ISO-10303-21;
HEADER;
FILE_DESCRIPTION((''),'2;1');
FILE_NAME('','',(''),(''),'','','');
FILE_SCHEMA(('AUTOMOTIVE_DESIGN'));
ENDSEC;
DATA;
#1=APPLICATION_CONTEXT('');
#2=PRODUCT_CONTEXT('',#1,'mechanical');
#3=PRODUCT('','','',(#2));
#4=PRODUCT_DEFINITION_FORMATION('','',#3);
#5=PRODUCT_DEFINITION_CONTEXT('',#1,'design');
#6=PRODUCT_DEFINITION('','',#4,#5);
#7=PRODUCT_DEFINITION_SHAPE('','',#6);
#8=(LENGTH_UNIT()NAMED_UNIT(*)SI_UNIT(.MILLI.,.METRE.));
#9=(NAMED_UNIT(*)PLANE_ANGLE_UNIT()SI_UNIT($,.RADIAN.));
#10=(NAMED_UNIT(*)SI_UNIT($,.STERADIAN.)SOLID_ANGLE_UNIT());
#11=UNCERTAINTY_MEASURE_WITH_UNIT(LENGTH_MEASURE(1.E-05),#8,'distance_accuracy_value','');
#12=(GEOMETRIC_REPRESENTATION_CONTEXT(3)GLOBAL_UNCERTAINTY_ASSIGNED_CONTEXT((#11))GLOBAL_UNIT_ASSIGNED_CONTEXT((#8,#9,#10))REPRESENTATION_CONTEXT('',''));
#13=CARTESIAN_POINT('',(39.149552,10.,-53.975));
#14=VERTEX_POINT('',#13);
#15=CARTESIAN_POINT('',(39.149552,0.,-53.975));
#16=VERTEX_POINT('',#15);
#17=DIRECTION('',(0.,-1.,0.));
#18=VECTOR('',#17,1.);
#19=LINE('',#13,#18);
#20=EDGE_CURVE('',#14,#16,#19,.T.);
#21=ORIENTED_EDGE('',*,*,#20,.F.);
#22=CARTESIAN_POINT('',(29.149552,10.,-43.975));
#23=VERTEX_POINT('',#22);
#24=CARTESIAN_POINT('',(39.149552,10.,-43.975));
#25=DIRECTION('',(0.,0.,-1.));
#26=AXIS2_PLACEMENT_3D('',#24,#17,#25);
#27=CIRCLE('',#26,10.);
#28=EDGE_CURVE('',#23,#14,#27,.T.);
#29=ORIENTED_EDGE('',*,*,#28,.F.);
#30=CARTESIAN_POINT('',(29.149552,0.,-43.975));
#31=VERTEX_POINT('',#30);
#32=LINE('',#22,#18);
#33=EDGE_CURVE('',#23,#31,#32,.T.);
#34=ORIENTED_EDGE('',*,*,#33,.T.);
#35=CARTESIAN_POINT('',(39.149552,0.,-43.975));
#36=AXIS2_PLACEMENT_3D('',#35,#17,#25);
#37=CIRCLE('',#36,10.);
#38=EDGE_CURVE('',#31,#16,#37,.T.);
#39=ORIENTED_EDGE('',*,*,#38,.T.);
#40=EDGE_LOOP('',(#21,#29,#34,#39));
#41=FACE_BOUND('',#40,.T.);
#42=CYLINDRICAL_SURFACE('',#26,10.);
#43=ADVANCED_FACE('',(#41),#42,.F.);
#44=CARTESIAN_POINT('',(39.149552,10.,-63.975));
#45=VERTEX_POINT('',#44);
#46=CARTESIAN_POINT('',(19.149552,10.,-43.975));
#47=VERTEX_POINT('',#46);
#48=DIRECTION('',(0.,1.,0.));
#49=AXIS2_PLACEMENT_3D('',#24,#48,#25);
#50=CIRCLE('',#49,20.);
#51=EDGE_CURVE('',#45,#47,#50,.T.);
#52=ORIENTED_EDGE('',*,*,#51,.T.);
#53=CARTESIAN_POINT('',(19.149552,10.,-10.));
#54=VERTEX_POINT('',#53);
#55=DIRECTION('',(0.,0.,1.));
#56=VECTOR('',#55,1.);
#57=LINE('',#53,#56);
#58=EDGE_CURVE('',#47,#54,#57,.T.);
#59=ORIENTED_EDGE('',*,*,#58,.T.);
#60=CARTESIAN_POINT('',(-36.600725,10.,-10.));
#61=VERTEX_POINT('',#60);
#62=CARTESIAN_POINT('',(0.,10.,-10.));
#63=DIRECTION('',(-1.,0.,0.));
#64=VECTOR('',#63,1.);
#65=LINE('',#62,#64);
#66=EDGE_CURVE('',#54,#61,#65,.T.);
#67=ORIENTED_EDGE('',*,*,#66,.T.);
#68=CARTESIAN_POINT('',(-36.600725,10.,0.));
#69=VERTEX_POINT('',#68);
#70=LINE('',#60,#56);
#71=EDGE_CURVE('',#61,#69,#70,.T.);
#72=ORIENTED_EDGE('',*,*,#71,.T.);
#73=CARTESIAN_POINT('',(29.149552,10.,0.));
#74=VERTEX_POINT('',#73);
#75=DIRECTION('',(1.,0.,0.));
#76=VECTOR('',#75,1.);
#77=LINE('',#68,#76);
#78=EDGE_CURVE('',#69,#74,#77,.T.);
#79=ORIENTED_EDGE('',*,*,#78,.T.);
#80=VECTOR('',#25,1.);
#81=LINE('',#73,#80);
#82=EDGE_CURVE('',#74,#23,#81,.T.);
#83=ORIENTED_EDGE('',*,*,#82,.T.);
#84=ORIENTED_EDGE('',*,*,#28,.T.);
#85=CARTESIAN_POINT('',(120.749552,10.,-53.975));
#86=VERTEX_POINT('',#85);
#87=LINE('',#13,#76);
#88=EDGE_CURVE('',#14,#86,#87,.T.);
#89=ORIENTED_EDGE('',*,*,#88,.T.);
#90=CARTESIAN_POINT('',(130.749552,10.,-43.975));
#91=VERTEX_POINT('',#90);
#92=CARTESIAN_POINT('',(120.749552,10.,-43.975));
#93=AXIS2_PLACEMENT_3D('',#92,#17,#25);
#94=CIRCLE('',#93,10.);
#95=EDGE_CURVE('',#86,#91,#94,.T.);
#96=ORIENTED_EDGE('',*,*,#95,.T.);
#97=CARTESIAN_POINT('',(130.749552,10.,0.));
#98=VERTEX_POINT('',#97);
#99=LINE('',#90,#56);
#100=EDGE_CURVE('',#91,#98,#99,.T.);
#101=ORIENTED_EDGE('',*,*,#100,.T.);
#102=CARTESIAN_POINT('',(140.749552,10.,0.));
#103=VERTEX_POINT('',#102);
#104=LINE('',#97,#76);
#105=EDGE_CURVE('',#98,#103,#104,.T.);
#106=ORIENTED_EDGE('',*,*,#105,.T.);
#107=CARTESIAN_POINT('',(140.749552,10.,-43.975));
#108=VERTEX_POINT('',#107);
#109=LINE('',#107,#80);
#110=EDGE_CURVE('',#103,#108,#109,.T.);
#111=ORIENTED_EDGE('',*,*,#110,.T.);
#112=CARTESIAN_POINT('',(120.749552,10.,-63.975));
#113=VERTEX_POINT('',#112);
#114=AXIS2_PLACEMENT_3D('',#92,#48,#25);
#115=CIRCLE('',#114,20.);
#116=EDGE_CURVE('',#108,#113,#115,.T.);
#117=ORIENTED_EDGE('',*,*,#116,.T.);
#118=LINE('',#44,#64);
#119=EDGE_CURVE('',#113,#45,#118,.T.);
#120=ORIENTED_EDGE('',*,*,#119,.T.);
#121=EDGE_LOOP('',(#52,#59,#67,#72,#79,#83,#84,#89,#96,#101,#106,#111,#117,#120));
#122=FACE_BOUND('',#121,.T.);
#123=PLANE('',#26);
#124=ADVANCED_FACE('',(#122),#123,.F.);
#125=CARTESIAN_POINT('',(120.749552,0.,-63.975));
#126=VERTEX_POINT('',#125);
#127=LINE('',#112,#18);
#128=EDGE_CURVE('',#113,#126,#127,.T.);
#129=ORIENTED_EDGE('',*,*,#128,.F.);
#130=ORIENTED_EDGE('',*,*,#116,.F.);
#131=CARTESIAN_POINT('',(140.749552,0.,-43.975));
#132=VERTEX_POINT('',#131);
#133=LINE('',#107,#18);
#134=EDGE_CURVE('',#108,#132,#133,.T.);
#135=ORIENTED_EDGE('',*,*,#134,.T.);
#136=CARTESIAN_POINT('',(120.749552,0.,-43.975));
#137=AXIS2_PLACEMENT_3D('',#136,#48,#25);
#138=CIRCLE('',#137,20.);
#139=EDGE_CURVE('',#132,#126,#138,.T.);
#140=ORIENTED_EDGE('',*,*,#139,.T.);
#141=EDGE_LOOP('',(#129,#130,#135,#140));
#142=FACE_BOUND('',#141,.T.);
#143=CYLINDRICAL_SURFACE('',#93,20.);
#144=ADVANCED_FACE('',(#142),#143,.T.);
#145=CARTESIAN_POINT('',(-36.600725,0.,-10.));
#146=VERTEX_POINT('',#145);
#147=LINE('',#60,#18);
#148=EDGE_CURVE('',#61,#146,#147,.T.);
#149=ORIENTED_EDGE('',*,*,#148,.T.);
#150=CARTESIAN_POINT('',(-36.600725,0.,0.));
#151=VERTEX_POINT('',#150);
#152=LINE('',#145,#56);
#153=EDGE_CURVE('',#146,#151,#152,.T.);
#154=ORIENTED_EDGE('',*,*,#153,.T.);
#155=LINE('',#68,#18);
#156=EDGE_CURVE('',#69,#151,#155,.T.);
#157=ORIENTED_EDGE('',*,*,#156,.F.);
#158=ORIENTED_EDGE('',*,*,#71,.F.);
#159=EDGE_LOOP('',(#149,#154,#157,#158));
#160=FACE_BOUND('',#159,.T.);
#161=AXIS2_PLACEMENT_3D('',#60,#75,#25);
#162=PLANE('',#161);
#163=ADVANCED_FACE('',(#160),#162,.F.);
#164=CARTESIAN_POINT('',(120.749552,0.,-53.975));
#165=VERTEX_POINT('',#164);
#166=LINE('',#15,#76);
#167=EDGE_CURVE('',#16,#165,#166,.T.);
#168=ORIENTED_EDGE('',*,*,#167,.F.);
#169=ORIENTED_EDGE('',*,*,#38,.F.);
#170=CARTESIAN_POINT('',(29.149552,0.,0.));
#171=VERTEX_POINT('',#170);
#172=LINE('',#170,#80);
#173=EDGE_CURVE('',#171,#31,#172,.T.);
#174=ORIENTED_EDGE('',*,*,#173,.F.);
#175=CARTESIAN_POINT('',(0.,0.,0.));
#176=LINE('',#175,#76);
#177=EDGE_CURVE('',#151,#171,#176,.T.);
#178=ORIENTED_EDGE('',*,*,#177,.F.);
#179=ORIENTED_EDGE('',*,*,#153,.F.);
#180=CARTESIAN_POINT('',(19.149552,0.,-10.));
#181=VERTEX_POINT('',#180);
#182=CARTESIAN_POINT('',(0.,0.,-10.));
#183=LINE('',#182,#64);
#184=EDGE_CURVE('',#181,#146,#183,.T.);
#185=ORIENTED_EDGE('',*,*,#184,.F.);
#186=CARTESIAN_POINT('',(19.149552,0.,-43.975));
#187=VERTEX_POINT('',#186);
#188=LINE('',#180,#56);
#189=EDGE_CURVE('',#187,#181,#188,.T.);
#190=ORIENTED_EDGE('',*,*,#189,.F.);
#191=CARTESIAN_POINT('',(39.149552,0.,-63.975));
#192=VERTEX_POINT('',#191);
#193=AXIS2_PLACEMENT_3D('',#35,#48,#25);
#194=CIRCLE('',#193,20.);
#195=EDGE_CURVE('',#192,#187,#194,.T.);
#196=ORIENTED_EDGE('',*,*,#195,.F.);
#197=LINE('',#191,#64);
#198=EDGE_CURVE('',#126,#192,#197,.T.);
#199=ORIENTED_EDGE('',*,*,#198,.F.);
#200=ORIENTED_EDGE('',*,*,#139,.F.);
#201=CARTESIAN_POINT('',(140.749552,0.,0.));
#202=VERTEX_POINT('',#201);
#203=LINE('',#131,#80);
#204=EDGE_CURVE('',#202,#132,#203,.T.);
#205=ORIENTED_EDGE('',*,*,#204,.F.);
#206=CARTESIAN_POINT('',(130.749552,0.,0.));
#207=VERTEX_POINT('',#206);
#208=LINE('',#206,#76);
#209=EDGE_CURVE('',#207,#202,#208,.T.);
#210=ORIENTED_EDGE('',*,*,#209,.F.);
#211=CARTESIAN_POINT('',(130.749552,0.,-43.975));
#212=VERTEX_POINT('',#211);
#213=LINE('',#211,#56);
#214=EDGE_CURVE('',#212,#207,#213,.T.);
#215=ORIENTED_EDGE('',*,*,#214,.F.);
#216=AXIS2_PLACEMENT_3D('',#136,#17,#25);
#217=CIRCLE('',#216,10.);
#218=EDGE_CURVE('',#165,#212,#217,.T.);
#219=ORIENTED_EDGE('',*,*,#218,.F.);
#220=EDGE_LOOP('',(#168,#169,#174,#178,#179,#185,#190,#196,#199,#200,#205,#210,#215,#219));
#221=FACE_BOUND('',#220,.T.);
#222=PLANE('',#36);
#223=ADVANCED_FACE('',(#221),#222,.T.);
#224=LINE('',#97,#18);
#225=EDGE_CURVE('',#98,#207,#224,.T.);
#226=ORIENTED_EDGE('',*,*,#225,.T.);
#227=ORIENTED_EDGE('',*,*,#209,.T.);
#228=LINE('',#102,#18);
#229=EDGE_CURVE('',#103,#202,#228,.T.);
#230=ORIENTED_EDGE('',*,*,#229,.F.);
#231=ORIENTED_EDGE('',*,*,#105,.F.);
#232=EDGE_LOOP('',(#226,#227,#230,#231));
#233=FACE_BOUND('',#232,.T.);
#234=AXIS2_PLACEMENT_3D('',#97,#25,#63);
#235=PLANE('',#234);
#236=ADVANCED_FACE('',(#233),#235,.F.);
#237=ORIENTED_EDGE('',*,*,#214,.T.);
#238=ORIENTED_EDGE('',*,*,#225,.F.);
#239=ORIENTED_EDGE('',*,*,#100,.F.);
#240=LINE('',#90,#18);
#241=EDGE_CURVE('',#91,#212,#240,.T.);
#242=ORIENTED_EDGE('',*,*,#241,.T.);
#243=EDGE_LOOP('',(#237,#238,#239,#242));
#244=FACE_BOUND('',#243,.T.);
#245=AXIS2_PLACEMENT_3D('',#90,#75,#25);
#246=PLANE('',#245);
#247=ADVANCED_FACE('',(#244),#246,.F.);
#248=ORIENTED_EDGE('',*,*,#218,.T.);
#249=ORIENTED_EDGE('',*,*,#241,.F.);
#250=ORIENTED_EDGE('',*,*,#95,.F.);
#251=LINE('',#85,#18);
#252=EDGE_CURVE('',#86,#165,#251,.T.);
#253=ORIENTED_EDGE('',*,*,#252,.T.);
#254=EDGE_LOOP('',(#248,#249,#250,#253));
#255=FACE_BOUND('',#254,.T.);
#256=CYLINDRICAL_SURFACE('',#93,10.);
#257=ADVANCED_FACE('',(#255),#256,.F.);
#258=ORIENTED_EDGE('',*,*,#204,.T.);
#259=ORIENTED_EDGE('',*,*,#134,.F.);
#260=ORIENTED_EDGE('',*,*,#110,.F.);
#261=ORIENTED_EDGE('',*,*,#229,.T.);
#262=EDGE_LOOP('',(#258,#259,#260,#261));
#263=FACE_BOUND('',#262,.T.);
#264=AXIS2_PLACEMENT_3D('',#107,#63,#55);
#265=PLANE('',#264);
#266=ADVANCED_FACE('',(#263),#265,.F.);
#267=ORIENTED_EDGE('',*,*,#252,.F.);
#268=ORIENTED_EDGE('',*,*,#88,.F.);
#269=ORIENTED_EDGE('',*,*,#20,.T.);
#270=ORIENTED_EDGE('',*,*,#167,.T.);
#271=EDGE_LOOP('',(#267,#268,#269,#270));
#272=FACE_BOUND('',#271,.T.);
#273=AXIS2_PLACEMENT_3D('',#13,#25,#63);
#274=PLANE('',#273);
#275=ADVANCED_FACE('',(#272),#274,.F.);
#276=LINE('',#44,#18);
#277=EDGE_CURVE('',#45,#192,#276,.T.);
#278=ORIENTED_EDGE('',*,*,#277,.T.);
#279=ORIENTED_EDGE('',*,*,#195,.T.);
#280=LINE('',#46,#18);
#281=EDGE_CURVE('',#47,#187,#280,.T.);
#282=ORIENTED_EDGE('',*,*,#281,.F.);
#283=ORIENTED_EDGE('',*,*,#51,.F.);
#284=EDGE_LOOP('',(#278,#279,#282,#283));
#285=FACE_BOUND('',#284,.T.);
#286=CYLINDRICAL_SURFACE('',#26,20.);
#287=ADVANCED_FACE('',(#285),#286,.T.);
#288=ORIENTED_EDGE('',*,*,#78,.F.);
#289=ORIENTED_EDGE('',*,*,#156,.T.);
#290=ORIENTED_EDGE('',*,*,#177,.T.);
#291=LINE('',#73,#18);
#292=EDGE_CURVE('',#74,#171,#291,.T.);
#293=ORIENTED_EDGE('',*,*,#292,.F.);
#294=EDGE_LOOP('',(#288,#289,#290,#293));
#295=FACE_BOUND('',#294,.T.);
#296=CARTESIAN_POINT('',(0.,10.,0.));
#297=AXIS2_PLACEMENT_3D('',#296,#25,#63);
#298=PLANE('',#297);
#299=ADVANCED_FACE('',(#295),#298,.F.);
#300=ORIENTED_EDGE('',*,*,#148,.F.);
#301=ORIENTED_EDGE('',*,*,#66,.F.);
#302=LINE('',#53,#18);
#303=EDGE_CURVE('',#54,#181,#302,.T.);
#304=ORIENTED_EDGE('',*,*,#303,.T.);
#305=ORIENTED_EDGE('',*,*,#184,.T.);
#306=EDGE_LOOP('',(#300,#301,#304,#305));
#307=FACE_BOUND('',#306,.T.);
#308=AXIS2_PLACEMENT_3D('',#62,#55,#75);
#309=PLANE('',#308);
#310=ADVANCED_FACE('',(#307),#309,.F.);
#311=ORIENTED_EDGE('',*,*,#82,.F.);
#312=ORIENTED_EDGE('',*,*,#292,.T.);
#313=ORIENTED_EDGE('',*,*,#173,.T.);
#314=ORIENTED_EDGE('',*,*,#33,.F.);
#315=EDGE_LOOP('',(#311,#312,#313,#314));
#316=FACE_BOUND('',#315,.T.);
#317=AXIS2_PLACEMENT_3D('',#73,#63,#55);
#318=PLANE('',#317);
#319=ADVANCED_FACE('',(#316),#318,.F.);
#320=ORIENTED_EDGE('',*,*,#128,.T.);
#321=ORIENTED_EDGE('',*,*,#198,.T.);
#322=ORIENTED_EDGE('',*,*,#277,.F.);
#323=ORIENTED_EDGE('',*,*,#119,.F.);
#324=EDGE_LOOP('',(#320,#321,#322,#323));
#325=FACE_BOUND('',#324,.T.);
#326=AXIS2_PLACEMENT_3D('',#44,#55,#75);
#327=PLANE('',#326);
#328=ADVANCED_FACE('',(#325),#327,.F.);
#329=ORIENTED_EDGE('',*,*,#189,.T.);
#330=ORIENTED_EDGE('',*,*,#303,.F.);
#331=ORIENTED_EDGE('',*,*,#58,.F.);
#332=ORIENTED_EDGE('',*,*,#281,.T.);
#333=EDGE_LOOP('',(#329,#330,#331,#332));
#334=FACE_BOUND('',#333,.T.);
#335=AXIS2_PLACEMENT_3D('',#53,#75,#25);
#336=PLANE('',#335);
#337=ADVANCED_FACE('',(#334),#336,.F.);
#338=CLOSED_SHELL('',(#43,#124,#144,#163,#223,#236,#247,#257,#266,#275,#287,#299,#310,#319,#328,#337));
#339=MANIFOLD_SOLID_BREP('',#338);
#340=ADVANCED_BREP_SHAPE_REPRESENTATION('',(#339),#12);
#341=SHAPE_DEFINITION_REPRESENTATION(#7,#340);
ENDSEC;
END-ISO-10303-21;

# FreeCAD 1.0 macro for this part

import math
import FreeCAD as App
import Part
import Sketcher

doc = App.newDocument("Part")
body = doc.addObject("PartDesign::Body", "Body")

sketch1 = body.newObject("Sketcher::SketchObject", "Sketch")
sketch1.AttachmentSupport = (doc.getObject("XZ_Plane"), [""])
sketch1.MapMode = "FlatFace"
sketch1.addGeometry([
    Part.LineSegment(App.Vector(29.149552, 0, 0), App.Vector(29.149552, -43.975, 0)),
    Part.ArcOfCircle(Part.Circle(App.Vector(39.149552, -43.975, 0), App.Vector(0, 0, 1), 10), math.radians(180), math.radians(270)),
    Part.LineSegment(App.Vector(39.149552, -53.975, 0), App.Vector(120.749552, -53.975, 0)),
    Part.ArcOfCircle(Part.Circle(App.Vector(120.749552, -43.975, 0), App.Vector(0, 0, 1), 10), math.radians(-90), math.radians(0)),
    Part.LineSegment(App.Vector(130.749552, -43.975, 0), App.Vector(130.749552, 0, 0)),
    Part.LineSegment(App.Vector(130.749552, 0, 0), App.Vector(140.749552, 0, 0)),
    Part.LineSegment(App.Vector(140.749552, 0, 0), App.Vector(140.749552, -43.975, 0)),
    Part.ArcOfCircle(Part.Circle(App.Vector(120.749552, -43.975, 0), App.Vector(0, 0, 1), 20), math.radians(-90), math.radians(0)),
    Part.LineSegment(App.Vector(120.749552, -63.975, 0), App.Vector(39.149552, -63.975, 0)),
    Part.ArcOfCircle(Part.Circle(App.Vector(39.149552, -43.975, 0), App.Vector(0, 0, 1), 20), math.radians(180), math.radians(270)),
    Part.LineSegment(App.Vector(19.149552, -43.975, 0), App.Vector(19.149552, -10, 0)),
    Part.LineSegment(App.Vector(19.149552, -10, 0), App.Vector(-36.600725, -10, 0)),
    Part.LineSegment(App.Vector(-36.600725, -10, 0), App.Vector(-36.600725, 0, 0)),
    Part.LineSegment(App.Vector(-36.600725, 0, 0), App.Vector(29.149552, 0, 0)),
], False)
sketch1.addConstraint([
    Sketcher.Constraint("Tangent", 0, 2, 1, 1),
    Sketcher.Constraint("Tangent", 1, 2, 2, 1),
    Sketcher.Constraint("Tangent", 2, 2, 3, 1),
    Sketcher.Constraint("Tangent", 3, 2, 4, 1),
    Sketcher.Constraint("Coincident", 4, 2, 5, 1),
    Sketcher.Constraint("Coincident", 5, 2, 6, 1),
    Sketcher.Constraint("Tangent", 6, 2, 7, 2),
    Sketcher.Constraint("Tangent", 7, 1, 8, 1),
    Sketcher.Constraint("Tangent", 8, 2, 9, 2),
    Sketcher.Constraint("Tangent", 9, 1, 10, 1),
    Sketcher.Constraint("Coincident", 10, 2, 11, 1),
    Sketcher.Constraint("Coincident", 11, 2, 12, 1),
    Sketcher.Constraint("Coincident", 12, 2, 13, 1),
    Sketcher.Constraint("Coincident", 13, 2, 0, 1),
    Sketcher.Constraint("Vertical", 0),
    Sketcher.Constraint("Horizontal", 2),
    Sketcher.Constraint("Vertical", 4),
    Sketcher.Constraint("Horizontal", 5),
    Sketcher.Constraint("Vertical", 6),
    Sketcher.Constraint("Horizontal", 8),
    Sketcher.Constraint("Vertical", 10),
    Sketcher.Constraint("Horizontal", 11),
    Sketcher.Constraint("Vertical", 12),
    Sketcher.Constraint("Horizontal", 13),
    Sketcher.Constraint("Coincident", 7, 3, 3, 3),
    Sketcher.Constraint("Coincident", 9, 3, 1, 3),
    Sketcher.Constraint("Equal", 1, 3),
    Sketcher.Constraint("PointOnObject", 4, 2, -1),
    Sketcher.Constraint("PointOnObject", 12, 2, -1),
    Sketcher.Constraint("Equal", 5, 12),
    Sketcher.Constraint("Radius", 1, 10.0),
    Sketcher.Constraint("Radius", 7, 20.0),
    Sketcher.Constraint("DistanceX", 2, 1, 2, 2, 81.6),
    Sketcher.Constraint("DistanceY", 0, 2, 0, 1, 43.975),
    Sketcher.Constraint("DistanceX", 11, 2, 11, 1, 55.750277),
    Sketcher.Constraint("DistanceX", -1, 1, 1, 3, 39.149552),
])
pad1 = body.newObject("PartDesign::Pad", "Pad")
pad1.Profile = sketch1
pad1.Length = 10
pad1.Reversed = True

doc.recompute()
